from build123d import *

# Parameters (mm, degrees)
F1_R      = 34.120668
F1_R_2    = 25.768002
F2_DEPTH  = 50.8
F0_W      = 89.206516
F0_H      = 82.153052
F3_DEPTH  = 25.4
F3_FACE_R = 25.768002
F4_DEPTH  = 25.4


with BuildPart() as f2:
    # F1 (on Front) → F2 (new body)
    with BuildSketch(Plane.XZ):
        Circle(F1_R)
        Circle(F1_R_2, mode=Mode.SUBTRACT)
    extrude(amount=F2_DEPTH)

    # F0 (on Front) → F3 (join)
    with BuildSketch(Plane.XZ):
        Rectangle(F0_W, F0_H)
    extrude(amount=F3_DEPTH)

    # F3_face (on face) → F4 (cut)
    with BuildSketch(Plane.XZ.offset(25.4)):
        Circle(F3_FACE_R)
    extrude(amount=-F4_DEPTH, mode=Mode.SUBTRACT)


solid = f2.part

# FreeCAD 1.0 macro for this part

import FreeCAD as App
import Part
import Sketcher
from FreeCAD import Vector
Q = App.Units.Quantity

doc = App.newDocument("Part")
body = doc.addObject("PartDesign::Body", "Body")

sketch1 = body.newObject("Sketcher::SketchObject", "Sketch")
sketch1.AttachmentSupport = (doc.getObject("XZ_Plane"), [""])
sketch1.MapMode = "FlatFace"
sketch1.addGeometry([
    Part.Circle(Vector(0, 0, 0), Vector(0, 0, 1), 34),
    Part.Circle(Vector(0, 0, 0), Vector(0, 0, 1), 26),
], False)
sketch1.addConstraint([
    Sketcher.Constraint("Coincident", 0, 3, -1, 1),
    Sketcher.Constraint("Coincident", 1, 3, -1, 1),
    Sketcher.Constraint("Diameter", 0, 68.241336),
    Sketcher.Constraint("Diameter", 1, 51.536004),
])
pad1 = body.newObject("PartDesign::Pad", "Pad")
pad1.Profile = sketch1
pad1.Length = Q("2 in")

sketch2 = body.newObject("Sketcher::SketchObject", "Sketch001")
sketch2.AttachmentSupport = (doc.getObject("XZ_Plane"), [""])
sketch2.MapMode = "FlatFace"
sketch2.addGeometry([
    Part.LineSegment(Vector(-45, 41, 0), Vector(-45, -41, 0)),
    Part.LineSegment(Vector(-45, -41, 0), Vector(45, -41, 0)),
    Part.LineSegment(Vector(45, -41, 0), Vector(45, 41, 0)),
    Part.LineSegment(Vector(45, 41, 0), Vector(-45, 41, 0)),
], False)
sketch2.addConstraint([
    Sketcher.Constraint("Coincident", 0, 2, 1, 1),
    Sketcher.Constraint("Coincident", 1, 2, 2, 1),
    Sketcher.Constraint("Coincident", 2, 2, 3, 1),
    Sketcher.Constraint("Coincident", 3, 2, 0, 1),
    Sketcher.Constraint("Vertical", 0),
    Sketcher.Constraint("Horizontal", 1),
    Sketcher.Constraint("Vertical", 2),
    Sketcher.Constraint("Horizontal", 3),
    Sketcher.Constraint("Symmetric", 0, 2, 2, 2, -1, 1),
    Sketcher.Constraint("DistanceX", 1, 1, 1, 2, 89.206516),
    Sketcher.Constraint("DistanceY", 0, 2, 0, 1, 82.153052),
])
pad2 = body.newObject("PartDesign::Pad", "Pad001")
pad2.Profile = sketch2
pad2.Length = Q("1 in")

sketch3 = body.newObject("Sketcher::SketchObject", "Sketch002")
sketch3.AttachmentSupport = (doc.getObject("XZ_Plane"), [""])
sketch3.MapMode = "FlatFace"
sketch3.AttachmentOffset = App.Placement(Vector(0, 0, 1 * 25.4), App.Rotation())
sketch3.addGeometry(Part.Circle(Vector(0, 0, 0), Vector(0, 0, 1), 26), False)
sketch3.addConstraint([
    Sketcher.Constraint("Coincident", 0, 3, -1, 1),
    Sketcher.Constraint("Diameter", 0, 51.536004),
])
pocket1 = body.newObject("PartDesign::Pocket", "Pocket")
pocket1.Profile = sketch3
pocket1.Length = Q("1 in")

doc.recompute()
